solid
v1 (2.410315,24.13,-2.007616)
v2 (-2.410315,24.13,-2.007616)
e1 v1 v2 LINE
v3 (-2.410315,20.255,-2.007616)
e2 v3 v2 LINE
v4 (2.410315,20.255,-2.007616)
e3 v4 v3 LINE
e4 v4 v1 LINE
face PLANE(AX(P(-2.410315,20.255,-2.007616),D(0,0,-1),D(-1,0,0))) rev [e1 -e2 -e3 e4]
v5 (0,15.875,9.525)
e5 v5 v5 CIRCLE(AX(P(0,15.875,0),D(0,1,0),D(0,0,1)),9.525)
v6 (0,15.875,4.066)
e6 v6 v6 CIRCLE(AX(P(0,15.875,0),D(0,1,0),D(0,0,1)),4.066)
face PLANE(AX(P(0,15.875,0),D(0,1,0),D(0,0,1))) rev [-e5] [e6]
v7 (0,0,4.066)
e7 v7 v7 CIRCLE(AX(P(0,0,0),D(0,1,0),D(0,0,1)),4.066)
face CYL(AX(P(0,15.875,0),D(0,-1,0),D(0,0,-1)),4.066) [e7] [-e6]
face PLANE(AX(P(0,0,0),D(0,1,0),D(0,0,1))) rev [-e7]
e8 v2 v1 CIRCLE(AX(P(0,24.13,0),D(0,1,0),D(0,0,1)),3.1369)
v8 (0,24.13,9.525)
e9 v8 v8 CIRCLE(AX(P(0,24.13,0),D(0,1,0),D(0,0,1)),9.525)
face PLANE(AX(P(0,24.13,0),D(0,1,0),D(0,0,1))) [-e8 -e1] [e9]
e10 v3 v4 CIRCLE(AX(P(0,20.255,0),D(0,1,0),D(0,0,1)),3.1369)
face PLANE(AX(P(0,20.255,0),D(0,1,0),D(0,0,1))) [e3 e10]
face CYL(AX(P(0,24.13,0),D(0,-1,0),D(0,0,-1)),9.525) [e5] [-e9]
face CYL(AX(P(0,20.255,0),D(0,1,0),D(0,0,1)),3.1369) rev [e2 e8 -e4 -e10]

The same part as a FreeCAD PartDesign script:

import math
import FreeCAD as App
import Part
import Sketcher

V = App.Vector
Q = App.Units.Quantity

doc = App.newDocument("Part")
body = doc.addObject("PartDesign::Body", "Body")

sketch1 = body.newObject("Sketcher::SketchObject", "Sketch")
sketch1.AttachmentSupport = (doc.getObject("XZ_Plane"), [""])
sketch1.MapMode = "FlatFace"
sketch1.addGeometry(Part.Circle(V(0, 0, 0), V(0, 0, 1), 4.066), False)
sketch1.addConstraint(Sketcher.Constraint("Coincident", 0, 3, -1, 1))
sketch1.addConstraint(Sketcher.Constraint("Diameter", 0, 8.132))
pad1 = body.newObject("PartDesign::Pad", "Pad")
pad1.Profile = sketch1
pad1.Length = Q("0.625 in")
pad1.Reversed = True

sketch2 = body.newObject("Sketcher::SketchObject", "Sketch001")
sketch2.AttachmentSupport = (doc.getObject("XZ_Plane"), [""])
sketch2.MapMode = "FlatFace"
sketch2.AttachmentOffset = App.Placement(V(0, 0, -0.625 * 25.4), App.Rotation())
sketch2.addGeometry(Part.Circle(V(0, 0, 0), V(0, 0, 1), 9.525), False)
sketch2.addConstraint(Sketcher.Constraint("Coincident", 0, 3, -1, 1))
sketch2.addConstraint(Sketcher.Constraint("Diameter", 0, Q("0.75 in")))
pad2 = body.newObject("PartDesign::Pad", "Pad001")
pad2.Profile = sketch2
pad2.Length = Q("0.325 in")
pad2.Reversed = True

sketch3 = body.newObject("Sketcher::SketchObject", "Sketch002")
sketch3.AttachmentSupport = (doc.getObject("XZ_Plane"), [""])
sketch3.MapMode = "FlatFace"
sketch3.AttachmentOffset = App.Placement(V(0, 0, -0.95 * 25.4), App.Rotation())
sketch3.addGeometry(Part.LineSegment(V(2.410315, -2.007616, 0), V(-2.410315, -2.007616, 0)), False)
sketch3.addGeometry(Part.ArcOfCircle(Part.Circle(V(0, 0, 0), V(0, 0, 1), 3.1369), math.radians(-39.79182), math.radians(219.79182)), False)
sketch3.addConstraint(Sketcher.Constraint("Coincident", 0, 1, 1, 1))
sketch3.addConstraint(Sketcher.Constraint("Coincident", 1, 2, 0, 2))
sketch3.addConstraint(Sketcher.Constraint("Horizontal", 0))
sketch3.addConstraint(Sketcher.Constraint("Coincident", 1, 3, -1, 1))
sketch3.addConstraint(Sketcher.Constraint("Radius", 1, Q("0.1235 in")))
sketch3.addConstraint(Sketcher.Constraint("DistanceX", 0, 2, 0, 1, 4.820631))
pocket1 = body.newObject("PartDesign::Pocket", "Pocket")
pocket1.Profile = sketch3
pocket1.Length = 3.875
pocket1.Reversed = True

doc.recompute()
